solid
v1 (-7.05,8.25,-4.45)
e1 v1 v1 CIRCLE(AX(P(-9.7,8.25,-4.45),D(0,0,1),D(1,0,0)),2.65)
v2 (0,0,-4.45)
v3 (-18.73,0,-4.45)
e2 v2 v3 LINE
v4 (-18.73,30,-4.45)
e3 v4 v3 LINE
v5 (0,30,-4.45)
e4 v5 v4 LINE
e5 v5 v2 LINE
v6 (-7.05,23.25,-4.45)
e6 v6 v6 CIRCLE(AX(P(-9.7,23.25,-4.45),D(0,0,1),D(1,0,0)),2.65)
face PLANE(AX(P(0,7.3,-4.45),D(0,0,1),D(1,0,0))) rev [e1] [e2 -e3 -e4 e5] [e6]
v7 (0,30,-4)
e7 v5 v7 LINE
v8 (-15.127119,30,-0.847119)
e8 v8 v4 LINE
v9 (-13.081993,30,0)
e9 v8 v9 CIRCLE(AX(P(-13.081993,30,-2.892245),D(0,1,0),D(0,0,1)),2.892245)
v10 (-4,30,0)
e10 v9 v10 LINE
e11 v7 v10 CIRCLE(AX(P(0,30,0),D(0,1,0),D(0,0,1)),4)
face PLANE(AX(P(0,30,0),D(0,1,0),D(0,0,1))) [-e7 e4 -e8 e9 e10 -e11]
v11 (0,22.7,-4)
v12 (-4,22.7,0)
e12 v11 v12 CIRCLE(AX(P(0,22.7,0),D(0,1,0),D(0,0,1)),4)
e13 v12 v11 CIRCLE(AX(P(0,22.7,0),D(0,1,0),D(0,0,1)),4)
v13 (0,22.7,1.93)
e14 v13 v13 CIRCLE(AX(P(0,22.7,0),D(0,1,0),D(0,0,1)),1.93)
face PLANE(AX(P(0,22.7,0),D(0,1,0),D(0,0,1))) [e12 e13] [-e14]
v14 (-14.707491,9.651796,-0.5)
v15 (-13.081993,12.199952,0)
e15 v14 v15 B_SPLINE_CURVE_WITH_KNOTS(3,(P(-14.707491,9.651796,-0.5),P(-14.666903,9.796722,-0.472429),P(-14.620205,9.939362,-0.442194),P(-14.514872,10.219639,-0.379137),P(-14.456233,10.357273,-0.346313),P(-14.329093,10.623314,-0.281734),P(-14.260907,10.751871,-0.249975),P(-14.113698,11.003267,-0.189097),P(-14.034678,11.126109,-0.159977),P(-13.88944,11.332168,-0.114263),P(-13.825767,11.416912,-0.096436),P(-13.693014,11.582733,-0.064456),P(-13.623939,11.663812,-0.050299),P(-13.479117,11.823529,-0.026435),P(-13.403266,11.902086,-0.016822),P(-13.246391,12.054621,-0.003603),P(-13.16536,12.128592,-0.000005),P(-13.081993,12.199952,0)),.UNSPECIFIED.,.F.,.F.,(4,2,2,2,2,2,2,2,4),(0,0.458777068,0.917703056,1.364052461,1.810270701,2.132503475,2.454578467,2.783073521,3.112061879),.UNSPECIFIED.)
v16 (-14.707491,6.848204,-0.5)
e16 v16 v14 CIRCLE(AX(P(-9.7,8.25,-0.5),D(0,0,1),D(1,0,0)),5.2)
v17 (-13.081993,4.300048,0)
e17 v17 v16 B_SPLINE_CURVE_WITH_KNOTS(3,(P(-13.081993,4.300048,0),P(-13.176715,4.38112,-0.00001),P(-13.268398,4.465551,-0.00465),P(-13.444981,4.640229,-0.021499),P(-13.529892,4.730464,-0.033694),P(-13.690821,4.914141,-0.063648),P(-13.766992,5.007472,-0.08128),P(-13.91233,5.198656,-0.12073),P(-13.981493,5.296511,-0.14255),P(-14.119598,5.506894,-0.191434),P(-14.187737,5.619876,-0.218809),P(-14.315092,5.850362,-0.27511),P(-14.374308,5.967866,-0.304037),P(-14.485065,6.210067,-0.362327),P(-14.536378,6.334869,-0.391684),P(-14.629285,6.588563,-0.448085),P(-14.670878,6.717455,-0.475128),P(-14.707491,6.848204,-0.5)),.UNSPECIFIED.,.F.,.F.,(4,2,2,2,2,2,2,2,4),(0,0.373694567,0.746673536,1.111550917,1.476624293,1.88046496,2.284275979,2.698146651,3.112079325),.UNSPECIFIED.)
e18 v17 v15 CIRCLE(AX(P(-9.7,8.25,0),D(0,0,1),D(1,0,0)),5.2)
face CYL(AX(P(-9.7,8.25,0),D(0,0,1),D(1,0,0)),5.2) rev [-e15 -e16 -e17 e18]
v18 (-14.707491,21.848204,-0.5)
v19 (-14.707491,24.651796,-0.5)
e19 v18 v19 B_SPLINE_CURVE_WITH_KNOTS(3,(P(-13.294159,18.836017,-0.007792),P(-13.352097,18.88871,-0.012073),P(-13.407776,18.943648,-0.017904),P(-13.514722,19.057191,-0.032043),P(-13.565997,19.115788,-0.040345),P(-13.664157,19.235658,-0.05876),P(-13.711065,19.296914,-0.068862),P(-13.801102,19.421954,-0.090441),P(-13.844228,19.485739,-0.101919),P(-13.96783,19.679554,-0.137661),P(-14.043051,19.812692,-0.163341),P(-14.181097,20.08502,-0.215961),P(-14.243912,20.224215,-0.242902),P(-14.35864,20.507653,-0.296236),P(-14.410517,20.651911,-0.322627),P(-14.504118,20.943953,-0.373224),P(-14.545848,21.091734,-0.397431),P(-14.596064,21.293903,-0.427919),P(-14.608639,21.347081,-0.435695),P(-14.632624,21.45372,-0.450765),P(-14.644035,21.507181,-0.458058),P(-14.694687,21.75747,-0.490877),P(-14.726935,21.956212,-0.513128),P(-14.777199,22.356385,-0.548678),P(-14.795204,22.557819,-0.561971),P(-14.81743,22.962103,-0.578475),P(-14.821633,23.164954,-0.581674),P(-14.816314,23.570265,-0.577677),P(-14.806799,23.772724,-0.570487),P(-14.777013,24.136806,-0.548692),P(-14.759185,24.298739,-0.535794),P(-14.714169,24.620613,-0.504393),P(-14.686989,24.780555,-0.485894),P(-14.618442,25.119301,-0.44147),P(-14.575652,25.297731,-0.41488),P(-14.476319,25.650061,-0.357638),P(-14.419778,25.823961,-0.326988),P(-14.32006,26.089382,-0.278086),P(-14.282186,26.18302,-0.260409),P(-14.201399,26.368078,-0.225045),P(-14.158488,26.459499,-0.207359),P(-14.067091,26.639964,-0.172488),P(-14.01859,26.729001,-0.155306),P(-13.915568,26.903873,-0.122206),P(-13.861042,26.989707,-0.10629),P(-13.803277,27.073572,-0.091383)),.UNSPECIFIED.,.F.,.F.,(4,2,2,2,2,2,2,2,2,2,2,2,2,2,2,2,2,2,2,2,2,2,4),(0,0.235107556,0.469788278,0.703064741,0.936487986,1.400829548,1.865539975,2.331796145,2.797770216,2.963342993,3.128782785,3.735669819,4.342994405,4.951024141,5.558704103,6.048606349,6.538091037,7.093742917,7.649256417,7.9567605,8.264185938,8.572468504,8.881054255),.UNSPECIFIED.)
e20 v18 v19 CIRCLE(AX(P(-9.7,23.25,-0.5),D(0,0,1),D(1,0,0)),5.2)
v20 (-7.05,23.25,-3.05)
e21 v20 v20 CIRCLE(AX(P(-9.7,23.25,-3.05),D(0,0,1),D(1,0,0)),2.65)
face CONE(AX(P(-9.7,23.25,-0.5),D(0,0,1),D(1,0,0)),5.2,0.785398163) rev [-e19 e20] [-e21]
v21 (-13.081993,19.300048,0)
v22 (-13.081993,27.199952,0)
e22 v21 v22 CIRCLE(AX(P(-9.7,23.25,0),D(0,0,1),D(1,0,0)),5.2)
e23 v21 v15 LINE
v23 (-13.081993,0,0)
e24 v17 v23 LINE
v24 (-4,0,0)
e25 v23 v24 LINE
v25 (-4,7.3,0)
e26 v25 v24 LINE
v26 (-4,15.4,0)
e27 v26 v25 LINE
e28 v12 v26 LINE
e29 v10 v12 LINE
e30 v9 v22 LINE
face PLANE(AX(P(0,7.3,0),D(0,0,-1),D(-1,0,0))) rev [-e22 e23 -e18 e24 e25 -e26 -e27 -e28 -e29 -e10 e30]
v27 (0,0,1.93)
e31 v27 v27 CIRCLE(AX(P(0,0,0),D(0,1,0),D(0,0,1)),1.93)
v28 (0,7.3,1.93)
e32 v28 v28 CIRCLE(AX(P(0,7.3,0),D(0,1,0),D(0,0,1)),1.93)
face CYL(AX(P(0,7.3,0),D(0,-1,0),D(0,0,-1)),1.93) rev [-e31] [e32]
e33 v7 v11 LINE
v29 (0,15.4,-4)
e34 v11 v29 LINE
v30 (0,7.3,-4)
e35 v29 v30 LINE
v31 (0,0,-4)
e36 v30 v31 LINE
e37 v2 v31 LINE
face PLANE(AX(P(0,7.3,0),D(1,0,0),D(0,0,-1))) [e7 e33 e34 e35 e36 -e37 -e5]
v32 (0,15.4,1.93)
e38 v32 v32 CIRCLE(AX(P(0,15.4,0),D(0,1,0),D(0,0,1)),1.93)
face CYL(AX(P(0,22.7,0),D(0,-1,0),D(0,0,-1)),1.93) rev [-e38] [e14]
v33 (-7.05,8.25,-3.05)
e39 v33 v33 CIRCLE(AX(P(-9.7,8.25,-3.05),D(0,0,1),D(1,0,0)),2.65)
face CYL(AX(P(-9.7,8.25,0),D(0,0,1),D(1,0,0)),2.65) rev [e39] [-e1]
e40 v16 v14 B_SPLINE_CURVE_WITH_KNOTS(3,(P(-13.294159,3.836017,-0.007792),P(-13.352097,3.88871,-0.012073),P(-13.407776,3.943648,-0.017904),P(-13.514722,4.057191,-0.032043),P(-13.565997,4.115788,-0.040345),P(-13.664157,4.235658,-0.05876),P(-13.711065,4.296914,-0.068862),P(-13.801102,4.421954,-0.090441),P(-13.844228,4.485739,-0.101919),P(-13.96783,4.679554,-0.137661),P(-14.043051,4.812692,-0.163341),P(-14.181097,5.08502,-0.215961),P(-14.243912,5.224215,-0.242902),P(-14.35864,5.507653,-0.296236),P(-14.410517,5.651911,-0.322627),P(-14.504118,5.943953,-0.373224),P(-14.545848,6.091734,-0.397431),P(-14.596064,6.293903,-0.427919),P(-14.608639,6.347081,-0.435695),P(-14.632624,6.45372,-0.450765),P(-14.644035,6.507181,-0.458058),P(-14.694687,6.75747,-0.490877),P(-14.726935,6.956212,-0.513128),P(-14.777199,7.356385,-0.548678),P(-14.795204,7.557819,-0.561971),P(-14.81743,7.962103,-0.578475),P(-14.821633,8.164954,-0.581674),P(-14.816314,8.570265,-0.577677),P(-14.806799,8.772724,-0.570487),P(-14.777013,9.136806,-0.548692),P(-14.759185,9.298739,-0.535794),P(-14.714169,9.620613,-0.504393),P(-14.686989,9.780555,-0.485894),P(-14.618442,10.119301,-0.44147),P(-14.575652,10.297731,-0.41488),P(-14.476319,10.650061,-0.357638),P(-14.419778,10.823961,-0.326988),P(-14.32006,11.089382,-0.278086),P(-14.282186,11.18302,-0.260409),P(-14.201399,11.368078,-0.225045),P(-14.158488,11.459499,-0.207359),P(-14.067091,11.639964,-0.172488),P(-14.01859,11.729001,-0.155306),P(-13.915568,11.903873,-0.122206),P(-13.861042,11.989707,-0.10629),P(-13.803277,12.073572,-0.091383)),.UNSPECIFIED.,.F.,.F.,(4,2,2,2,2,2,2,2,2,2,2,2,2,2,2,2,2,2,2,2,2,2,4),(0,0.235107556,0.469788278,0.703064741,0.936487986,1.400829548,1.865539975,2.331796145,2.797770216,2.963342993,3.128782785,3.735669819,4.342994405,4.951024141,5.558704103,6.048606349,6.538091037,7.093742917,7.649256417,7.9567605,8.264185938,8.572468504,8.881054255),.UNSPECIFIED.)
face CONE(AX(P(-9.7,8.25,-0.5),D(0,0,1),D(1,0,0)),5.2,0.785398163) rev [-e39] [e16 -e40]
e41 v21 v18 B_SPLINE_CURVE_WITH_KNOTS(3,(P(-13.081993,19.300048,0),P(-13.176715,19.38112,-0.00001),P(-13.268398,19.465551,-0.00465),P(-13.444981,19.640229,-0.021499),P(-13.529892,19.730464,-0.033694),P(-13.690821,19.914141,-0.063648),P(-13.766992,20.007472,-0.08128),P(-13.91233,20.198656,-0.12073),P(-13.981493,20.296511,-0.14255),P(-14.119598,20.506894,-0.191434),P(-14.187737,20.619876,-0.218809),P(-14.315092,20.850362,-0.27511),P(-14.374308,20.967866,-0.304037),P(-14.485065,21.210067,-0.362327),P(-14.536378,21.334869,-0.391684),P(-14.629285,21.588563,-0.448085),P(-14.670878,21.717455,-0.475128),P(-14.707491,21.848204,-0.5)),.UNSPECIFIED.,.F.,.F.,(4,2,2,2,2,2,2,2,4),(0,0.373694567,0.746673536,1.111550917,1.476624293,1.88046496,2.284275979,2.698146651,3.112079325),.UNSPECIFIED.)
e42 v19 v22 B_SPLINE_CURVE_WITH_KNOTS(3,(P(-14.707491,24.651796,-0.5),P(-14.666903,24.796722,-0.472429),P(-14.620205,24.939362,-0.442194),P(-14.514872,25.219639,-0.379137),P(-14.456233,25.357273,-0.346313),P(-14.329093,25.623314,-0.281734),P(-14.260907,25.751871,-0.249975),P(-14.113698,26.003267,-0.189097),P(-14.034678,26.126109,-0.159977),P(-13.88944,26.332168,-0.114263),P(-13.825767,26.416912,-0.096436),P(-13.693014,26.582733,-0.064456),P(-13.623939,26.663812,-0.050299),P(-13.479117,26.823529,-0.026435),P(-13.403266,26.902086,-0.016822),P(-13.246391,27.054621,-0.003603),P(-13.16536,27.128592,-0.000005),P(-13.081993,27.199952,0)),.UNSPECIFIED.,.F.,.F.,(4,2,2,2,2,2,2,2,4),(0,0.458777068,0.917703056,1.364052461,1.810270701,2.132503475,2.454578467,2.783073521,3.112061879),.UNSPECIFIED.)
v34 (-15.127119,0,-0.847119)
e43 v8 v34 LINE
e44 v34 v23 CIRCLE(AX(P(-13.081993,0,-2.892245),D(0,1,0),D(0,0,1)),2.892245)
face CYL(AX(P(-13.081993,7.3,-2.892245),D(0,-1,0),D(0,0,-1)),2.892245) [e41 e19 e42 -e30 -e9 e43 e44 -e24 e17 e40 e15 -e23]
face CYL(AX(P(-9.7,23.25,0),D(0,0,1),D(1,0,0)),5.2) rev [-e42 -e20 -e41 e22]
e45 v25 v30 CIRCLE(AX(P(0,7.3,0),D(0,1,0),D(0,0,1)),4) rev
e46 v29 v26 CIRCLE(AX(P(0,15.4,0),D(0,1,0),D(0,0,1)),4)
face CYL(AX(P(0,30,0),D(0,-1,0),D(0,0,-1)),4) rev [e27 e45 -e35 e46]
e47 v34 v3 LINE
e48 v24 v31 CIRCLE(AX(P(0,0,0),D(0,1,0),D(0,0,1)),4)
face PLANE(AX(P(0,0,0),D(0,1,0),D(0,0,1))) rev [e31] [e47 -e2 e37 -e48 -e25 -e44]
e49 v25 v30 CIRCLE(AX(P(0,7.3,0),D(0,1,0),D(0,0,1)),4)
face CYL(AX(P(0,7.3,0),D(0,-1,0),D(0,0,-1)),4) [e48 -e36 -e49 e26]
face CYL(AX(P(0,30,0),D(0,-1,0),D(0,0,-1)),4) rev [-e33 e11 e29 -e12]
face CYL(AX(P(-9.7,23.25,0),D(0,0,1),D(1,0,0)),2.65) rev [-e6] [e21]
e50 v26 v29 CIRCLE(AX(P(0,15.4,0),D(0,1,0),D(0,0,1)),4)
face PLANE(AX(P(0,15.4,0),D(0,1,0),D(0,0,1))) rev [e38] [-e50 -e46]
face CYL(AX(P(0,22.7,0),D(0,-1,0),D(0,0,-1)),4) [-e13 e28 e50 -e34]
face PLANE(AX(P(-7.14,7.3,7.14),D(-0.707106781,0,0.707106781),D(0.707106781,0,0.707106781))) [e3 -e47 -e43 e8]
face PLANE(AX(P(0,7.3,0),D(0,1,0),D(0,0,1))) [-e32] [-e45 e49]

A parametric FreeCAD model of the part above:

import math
import FreeCAD as App
import Part
import Sketcher

V = App.Vector
Q = App.Units.Quantity

doc = App.newDocument("Part")
body = doc.addObject("PartDesign::Body", "Body")

# Sketch on XZ plane
sketch1 = body.newObject("Sketcher::SketchObject", "Sketch")
sketch1.AttachmentSupport = (doc.getObject("XZ_Plane"), [""])
sketch1.MapMode = "FlatFace"
sketch1.addGeometry([
    Part.LineSegment(V(0, -4, 0), V(0, -4.45, 0)),  # 0
    Part.LineSegment(V(0, -4.45, 0), V(-18.73, -4.45, 0)),  # 1
    Part.LineSegment(V(-18.73, -4.45, 0), V(-15.13, -0.85, 0)),  # 2
    Part.ArcOfCircle(Part.Circle(V(-13.08, -2.89, 0), V(0, 0, 1), 2.89), math.radians(90), math.radians(135)),  # 3
    Part.LineSegment(V(-13.08, 0, 0), V(-4, 0, 0)),  # 4
    Part.ArcOfCircle(Part.Circle(V(0, 0, 0), V(0, 0, 1), 4), math.radians(-90), math.radians(180)),  # 5
    Part.Circle(V(0, 0, 0), V(0, 0, 1), 1.93),  # 6
], False)
sketch1.addConstraint([
    Sketcher.Constraint("Coincident", 0, 2, 1, 1),
    Sketcher.Constraint("Coincident", 1, 2, 2, 1),
    Sketcher.Constraint("Tangent", 2, 2, 3, 2),
    Sketcher.Constraint("Tangent", 3, 1, 4, 1),
    Sketcher.Constraint("Coincident", 4, 2, 5, 2),
    Sketcher.Constraint("Coincident", 5, 1, 0, 1),
    Sketcher.Constraint("Vertical", 0),
    Sketcher.Constraint("Horizontal", 1),
    Sketcher.Constraint("Horizontal", 4),
    Sketcher.Constraint("Coincident", 5, 3, -1, 1),
    Sketcher.Constraint("Coincident", 6, 3, -1, 1),
    Sketcher.Constraint("PointOnObject", 0, 2, -2),
    Sketcher.Constraint("PointOnObject", 3, 1, -1),
    Sketcher.Constraint("Radius", 5, 4.0),
    Sketcher.Constraint("Diameter", 6, 3.86),
    Sketcher.Constraint("Angle", 2, Q("45 deg")),
    Sketcher.Constraint("DistanceX", 1, 2, 1, 1, 18.73),
    Sketcher.Constraint("DistanceY", 0, 2, 0, 1, 0.45),
    Sketcher.Constraint("Radius", 3, 2.892245),
])
pad1 = body.newObject("PartDesign::Pad", "Pad")
pad1.Profile = sketch1
pad1.Length = 7.3
pad1.Reversed = True

# Sketch on XZ plane
sketch2 = body.newObject("Sketcher::SketchObject", "Sketch001")
sketch2.AttachmentSupport = (doc.getObject("XZ_Plane"), [""])
sketch2.MapMode = "FlatFace"
sketch2.addGeometry([
    Part.LineSegment(V(0, -4, 0), V(0, -4.45, 0)),  # 0
    Part.LineSegment(V(0, -4.45, 0), V(-18.73, -4.45, 0)),  # 1
    Part.LineSegment(V(-18.73, -4.45, 0), V(-15.13, -0.85, 0)),  # 2
    Part.ArcOfCircle(Part.Circle(V(-13.08, -2.89, 0), V(0, 0, 1), 2.89), math.radians(90), math.radians(135)),  # 3
    Part.LineSegment(V(-13.08, 0, 0), V(-4, 0, 0)),  # 4
    Part.ArcOfCircle(Part.Circle(V(0, 0, 0), V(0, 0, 1), 4), math.radians(180), math.radians(270)),  # 5
], False)
sketch2.addConstraint([
    Sketcher.Constraint("Coincident", 0, 2, 1, 1),
    Sketcher.Constraint("Coincident", 1, 2, 2, 1),
    Sketcher.Constraint("Tangent", 2, 2, 3, 2),
    Sketcher.Constraint("Tangent", 3, 1, 4, 1),
    Sketcher.Constraint("Coincident", 4, 2, 5, 1),
    Sketcher.Constraint("Coincident", 5, 2, 0, 1),
    Sketcher.Constraint("Vertical", 0),
    Sketcher.Constraint("Horizontal", 1),
    Sketcher.Constraint("Horizontal", 4),
    Sketcher.Constraint("Coincident", 5, 3, -1, 1),
    Sketcher.Constraint("PointOnObject", 0, 2, -2),
    Sketcher.Constraint("PointOnObject", 3, 1, -1),
    Sketcher.Constraint("Radius", 5, 4.0),
    Sketcher.Constraint("Angle", 2, Q("45 deg")),
    Sketcher.Constraint("DistanceX", 1, 2, 1, 1, 18.73),
    Sketcher.Constraint("DistanceY", 0, 2, 0, 1, 0.45),
    Sketcher.Constraint("Radius", 3, 2.892245),
])
pad2 = body.newObject("PartDesign::Pad", "Pad001")
pad2.Profile = sketch2
pad2.Length = 30
pad2.Reversed = True

# Sketch on XZ plane
sketch3 = body.newObject("Sketcher::SketchObject", "Sketch002")
sketch3.AttachmentSupport = (doc.getObject("XZ_Plane"), [""])
sketch3.MapMode = "FlatFace"
sketch3.AttachmentOffset = App.Placement(V(0, 0, -15.4), App.Rotation())
sketch3.addGeometry([
    Part.Circle(V(0, 0, 0), V(0, 0, 1), 4),
    Part.Circle(V(0, 0, 0), V(0, 0, 1), 1.9),
], False)
sketch3.addConstraint([
    Sketcher.Constraint("Coincident", 0, 3, -1, 1),
    Sketcher.Constraint("Coincident", 1, 3, -1, 1),
    Sketcher.Constraint("Diameter", 0, 8.0),
    Sketcher.Constraint("Diameter", 1, 3.86),
])
pad3 = body.newObject("PartDesign::Pad", "Pad002")
pad3.Profile = sketch3
pad3.Length = 7.3
pad3.Reversed = True

# Sketch on YZ plane
sketch4 = body.newObject("Sketcher::SketchObject", "Sketch003")
sketch4.AttachmentSupport = (doc.getObject("YZ_Plane"), [""])
sketch4.MapMode = "FlatFace"
sketch4.AttachmentOffset = App.Placement(V(0, 0, -9.7), App.Rotation())
sketch4.addGeometry([
    Part.LineSegment(V(23.2, -4.5, 0), V(23.2, 0, 0)),  # 0
    Part.LineSegment(V(23.2, 0, 0), V(18.1, 0, 0)),  # 1
    Part.LineSegment(V(18.1, 0, 0), V(18.1, -0.5, 0)),  # 2
    Part.LineSegment(V(18.1, -0.5, 0), V(20.6, -3, 0)),  # 3
    Part.LineSegment(V(20.6, -3, 0), V(20.6, -4.5, 0)),  # 4
    Part.LineSegment(V(20.6, -4.5, 0), V(23.2, -4.5, 0)),  # 5
], False)
sketch4.addGeometry(Part.LineSegment(V(23.2, 0, 0), V(23.2, -4.5, 0)), True)  # axis
sketch4.addConstraint([
    Sketcher.Constraint("Coincident", 0, 2, 1, 1),
    Sketcher.Constraint("Coincident", 1, 2, 2, 1),
    Sketcher.Constraint("Coincident", 2, 2, 3, 1),
    Sketcher.Constraint("Coincident", 3, 2, 4, 1),
    Sketcher.Constraint("Coincident", 4, 2, 5, 1),
    Sketcher.Constraint("Coincident", 5, 2, 0, 1),
    Sketcher.Constraint("Vertical", 0),
    Sketcher.Constraint("Horizontal", 1),
    Sketcher.Constraint("Vertical", 2),
    Sketcher.Constraint("Vertical", 4),
    Sketcher.Constraint("Horizontal", 5),
    Sketcher.Constraint("Vertical", 6),
    Sketcher.Constraint("Coincident", 6, 1, 0, 2),
    Sketcher.Constraint("PointOnObject", 0, 2, -1),
    Sketcher.Constraint("Horizontal", 4, 2, 6, 2),
    Sketcher.Constraint("Angle", 3, Q("-45 deg")),
    Sketcher.Constraint("DistanceX", 1, 2, 1, 1, 5.2),
    Sketcher.Constraint("DistanceY", 2, 2, 2, 1, 0.5),
    Sketcher.Constraint("DistanceY", 4, 2, 4, 1, 1.4),
    Sketcher.Constraint("DistanceX", 5, 1, 5, 2, 2.65),
    Sketcher.Constraint("DistanceX", -1, 1, 3, 2, 20.6),
])
groove = body.newObject("PartDesign::Groove", "Groove")
groove.Profile = sketch4
groove.ReferenceAxis = (sketch4, ["Axis0"])
groove.Angle = 360
doc.recompute()

linearpattern = body.newObject("PartDesign::LinearPattern", "LinearPattern")
linearpattern.Originals = [groove]
linearpattern.Direction = (doc.getObject("Y_Axis"), [""])
linearpattern.Mode = "offset"
linearpattern.Offset = 15
linearpattern.Occurrences = 2
linearpattern.Reversed = True
body.Tip = linearpattern

doc.recompute()
